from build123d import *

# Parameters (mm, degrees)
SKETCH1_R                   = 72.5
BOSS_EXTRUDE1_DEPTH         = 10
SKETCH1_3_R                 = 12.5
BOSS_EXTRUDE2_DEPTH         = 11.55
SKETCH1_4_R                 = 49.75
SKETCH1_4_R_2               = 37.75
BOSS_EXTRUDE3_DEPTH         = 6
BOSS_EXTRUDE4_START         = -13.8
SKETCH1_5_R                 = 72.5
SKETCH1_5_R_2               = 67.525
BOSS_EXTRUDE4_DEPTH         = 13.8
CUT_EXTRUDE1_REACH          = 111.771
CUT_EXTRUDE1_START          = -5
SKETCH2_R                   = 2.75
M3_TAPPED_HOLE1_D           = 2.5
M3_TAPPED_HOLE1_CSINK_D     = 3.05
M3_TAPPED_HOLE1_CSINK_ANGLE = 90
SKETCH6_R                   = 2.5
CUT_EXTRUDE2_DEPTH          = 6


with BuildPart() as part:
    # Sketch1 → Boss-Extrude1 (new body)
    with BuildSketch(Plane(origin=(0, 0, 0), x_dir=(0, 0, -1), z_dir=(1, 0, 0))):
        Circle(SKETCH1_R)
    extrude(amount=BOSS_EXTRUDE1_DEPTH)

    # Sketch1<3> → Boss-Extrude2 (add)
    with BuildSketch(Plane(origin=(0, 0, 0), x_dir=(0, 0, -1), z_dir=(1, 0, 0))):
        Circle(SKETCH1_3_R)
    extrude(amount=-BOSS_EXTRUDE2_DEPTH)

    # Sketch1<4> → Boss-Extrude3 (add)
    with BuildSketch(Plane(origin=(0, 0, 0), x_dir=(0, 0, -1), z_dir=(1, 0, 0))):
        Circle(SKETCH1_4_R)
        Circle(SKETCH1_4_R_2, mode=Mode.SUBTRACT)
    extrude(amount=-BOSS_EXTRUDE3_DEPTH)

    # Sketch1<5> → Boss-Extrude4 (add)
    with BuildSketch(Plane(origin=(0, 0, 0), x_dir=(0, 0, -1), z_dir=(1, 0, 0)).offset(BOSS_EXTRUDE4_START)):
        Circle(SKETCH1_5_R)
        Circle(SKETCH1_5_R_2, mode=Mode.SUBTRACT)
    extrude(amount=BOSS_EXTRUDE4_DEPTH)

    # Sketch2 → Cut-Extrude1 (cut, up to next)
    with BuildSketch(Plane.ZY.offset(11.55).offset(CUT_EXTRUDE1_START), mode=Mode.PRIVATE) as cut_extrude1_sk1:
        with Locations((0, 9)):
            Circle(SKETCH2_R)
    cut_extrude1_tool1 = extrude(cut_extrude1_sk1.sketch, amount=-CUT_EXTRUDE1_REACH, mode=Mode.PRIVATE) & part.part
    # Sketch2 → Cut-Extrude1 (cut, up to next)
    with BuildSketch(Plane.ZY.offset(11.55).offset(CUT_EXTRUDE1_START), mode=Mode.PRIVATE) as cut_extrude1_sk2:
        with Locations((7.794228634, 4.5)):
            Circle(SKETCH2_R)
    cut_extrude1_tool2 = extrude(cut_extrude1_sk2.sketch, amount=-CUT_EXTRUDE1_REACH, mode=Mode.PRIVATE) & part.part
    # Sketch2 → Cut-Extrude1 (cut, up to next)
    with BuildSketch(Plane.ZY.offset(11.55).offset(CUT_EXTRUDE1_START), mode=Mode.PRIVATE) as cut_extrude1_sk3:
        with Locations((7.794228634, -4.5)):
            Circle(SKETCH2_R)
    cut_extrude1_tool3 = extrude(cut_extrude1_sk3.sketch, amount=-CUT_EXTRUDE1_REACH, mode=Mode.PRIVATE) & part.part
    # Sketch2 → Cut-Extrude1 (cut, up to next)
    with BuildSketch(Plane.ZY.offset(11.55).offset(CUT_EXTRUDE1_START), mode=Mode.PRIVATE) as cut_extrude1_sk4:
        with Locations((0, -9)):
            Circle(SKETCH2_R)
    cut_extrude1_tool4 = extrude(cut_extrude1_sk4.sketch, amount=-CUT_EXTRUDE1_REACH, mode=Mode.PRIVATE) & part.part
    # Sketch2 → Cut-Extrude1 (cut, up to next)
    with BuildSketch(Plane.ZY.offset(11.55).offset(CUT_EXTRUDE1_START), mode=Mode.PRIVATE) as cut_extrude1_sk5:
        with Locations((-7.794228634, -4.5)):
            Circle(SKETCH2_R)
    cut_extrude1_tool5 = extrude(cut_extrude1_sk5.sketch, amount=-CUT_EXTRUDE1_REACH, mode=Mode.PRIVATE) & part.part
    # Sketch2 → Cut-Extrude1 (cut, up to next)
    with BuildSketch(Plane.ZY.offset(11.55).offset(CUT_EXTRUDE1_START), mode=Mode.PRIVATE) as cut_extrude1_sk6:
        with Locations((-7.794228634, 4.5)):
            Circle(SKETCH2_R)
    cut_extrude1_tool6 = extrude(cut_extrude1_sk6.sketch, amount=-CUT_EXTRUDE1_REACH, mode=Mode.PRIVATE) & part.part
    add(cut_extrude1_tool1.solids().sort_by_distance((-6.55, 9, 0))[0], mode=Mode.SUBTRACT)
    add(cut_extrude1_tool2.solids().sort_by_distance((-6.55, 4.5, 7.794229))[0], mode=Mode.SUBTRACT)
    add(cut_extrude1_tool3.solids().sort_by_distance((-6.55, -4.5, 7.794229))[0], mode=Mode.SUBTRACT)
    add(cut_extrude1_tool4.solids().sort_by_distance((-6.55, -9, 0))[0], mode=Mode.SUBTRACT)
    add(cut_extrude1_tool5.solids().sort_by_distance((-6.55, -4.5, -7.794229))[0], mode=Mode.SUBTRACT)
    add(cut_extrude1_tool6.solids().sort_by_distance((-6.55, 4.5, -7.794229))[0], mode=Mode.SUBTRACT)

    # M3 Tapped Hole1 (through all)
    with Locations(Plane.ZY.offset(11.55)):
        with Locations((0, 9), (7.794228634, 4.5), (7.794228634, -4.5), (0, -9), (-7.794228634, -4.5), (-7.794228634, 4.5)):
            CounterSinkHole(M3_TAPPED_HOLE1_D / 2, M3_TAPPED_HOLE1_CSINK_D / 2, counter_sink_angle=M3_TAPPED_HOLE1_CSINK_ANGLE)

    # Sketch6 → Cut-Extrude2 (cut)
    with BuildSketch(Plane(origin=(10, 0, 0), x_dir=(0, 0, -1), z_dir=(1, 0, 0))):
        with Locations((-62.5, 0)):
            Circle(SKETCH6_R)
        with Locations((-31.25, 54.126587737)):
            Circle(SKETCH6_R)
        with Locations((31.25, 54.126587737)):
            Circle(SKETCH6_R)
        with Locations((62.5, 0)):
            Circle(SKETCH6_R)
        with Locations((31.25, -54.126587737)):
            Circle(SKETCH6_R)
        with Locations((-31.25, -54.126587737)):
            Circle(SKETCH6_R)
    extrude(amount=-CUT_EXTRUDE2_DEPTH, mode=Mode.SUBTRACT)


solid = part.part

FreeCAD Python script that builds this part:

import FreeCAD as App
import Part
import Sketcher

doc = App.newDocument("Part")
body = doc.addObject("PartDesign::Body", "Body")

# Sketch on YZ plane
sketch1 = body.newObject("Sketcher::SketchObject", "Sketch")
sketch1.AttachmentSupport = (doc.getObject("YZ_Plane"), [""])
sketch1.MapMode = "FlatFace"
sketch1.addGeometry(Part.Circle(App.Vector(0, 0, 0), App.Vector(0, 0, 1), 72.5), False)
sketch1.addConstraint([
    Sketcher.Constraint("Coincident", 0, 3, -1, 1),
    Sketcher.Constraint("Diameter", 0, 145.0),
])
pad1 = body.newObject("PartDesign::Pad", "Pad")
pad1.Profile = sketch1
pad1.Length = 10

# Sketch on YZ plane
sketch2 = body.newObject("Sketcher::SketchObject", "Sketch001")
sketch2.AttachmentSupport = (doc.getObject("YZ_Plane"), [""])
sketch2.MapMode = "FlatFace"
sketch2.addGeometry(Part.Circle(App.Vector(0, 0, 0), App.Vector(0, 0, 1), 12.5), False)
sketch2.addConstraint([
    Sketcher.Constraint("Coincident", 0, 3, -1, 1),
    Sketcher.Constraint("Diameter", 0, 25.0),
])
pad2 = body.newObject("PartDesign::Pad", "Pad001")
pad2.Profile = sketch2
pad2.Length = 11.55
pad2.Reversed = True

# Sketch on YZ plane
sketch3 = body.newObject("Sketcher::SketchObject", "Sketch002")
sketch3.AttachmentSupport = (doc.getObject("YZ_Plane"), [""])
sketch3.MapMode = "FlatFace"
sketch3.addGeometry([
    Part.Circle(App.Vector(0, 0, 0), App.Vector(0, 0, 1), 49.75),
    Part.Circle(App.Vector(0, 0, 0), App.Vector(0, 0, 1), 37.75),
], False)
sketch3.addConstraint([
    Sketcher.Constraint("Coincident", 0, 3, -1, 1),
    Sketcher.Constraint("Coincident", 1, 3, -1, 1),
    Sketcher.Constraint("Diameter", 0, 99.5),
    Sketcher.Constraint("Diameter", 1, 75.5),
])
pad3 = body.newObject("PartDesign::Pad", "Pad002")
pad3.Profile = sketch3
pad3.Length = 6
pad3.Reversed = True

# Sketch on YZ plane
sketch4 = body.newObject("Sketcher::SketchObject", "Sketch003")
sketch4.AttachmentSupport = (doc.getObject("YZ_Plane"), [""])
sketch4.MapMode = "FlatFace"
sketch4.AttachmentOffset = App.Placement(App.Vector(0, 0, -13.8), App.Rotation())
sketch4.addGeometry([
    Part.Circle(App.Vector(0, 0, 0), App.Vector(0, 0, 1), 72.5),
    Part.Circle(App.Vector(0, 0, 0), App.Vector(0, 0, 1), 67.525),
], False)
sketch4.addConstraint([
    Sketcher.Constraint("Coincident", 0, 3, -1, 1),
    Sketcher.Constraint("Coincident", 1, 3, -1, 1),
    Sketcher.Constraint("Diameter", 0, 145.0),
    Sketcher.Constraint("Diameter", 1, 135.05),
])
pad4 = body.newObject("PartDesign::Pad", "Pad003")
pad4.Profile = sketch4
pad4.Length = 13.8

# Sketch on YZ plane
sketch5 = body.newObject("Sketcher::SketchObject", "Sketch004")
sketch5.AttachmentSupport = (doc.getObject("YZ_Plane"), [""])
sketch5.MapMode = "FlatFace"
sketch5.AttachmentOffset = App.Placement(App.Vector(0, 0, -6.55), App.Rotation())
sketch5.addGeometry(Part.Circle(App.Vector(9, 0, 0), App.Vector(0, 0, 1), 2.75), False)
sketch5.addConstraint([
    Sketcher.Constraint("PointOnObject", 0, 3, -1),
    Sketcher.Constraint("Diameter", 0, 5.5),
    Sketcher.Constraint("DistanceX", -1, 1, 0, 3, 9.0),
])
pocket1 = body.newObject("PartDesign::Pocket", "Pocket")
pocket1.Profile = sketch5
pocket1.Type = "UpToFirst"
pocket1.Reversed = True

# Sketch on YZ plane
sketch6 = body.newObject("Sketcher::SketchObject", "Sketch005")
sketch6.AttachmentSupport = (doc.getObject("YZ_Plane"), [""])
sketch6.MapMode = "FlatFace"
sketch6.AttachmentOffset = App.Placement(App.Vector(0, 0, -6.55), App.Rotation())
sketch6.addGeometry(Part.Circle(App.Vector(4.5, 7.794229, 0), App.Vector(0, 0, 1), 2.75), False)
sketch6.addConstraint([
    Sketcher.Constraint("Diameter", 0, 5.5),
    Sketcher.Constraint("DistanceX", -1, 1, 0, 3, 4.5),
    Sketcher.Constraint("DistanceY", -1, 1, 0, 3, 7.794229),
])
pocket2 = body.newObject("PartDesign::Pocket", "Pocket001")
pocket2.Profile = sketch6
pocket2.Type = "UpToFirst"
pocket2.Reversed = True

# Sketch on YZ plane
sketch7 = body.newObject("Sketcher::SketchObject", "Sketch006")
sketch7.AttachmentSupport = (doc.getObject("YZ_Plane"), [""])
sketch7.MapMode = "FlatFace"
sketch7.AttachmentOffset = App.Placement(App.Vector(0, 0, -6.55), App.Rotation())
sketch7.addGeometry(Part.Circle(App.Vector(-4.5, 7.794229, 0), App.Vector(0, 0, 1), 2.75), False)
sketch7.addConstraint([
    Sketcher.Constraint("Diameter", 0, 5.5),
    Sketcher.Constraint("DistanceX", 0, 3, -1, 1, 4.5),
    Sketcher.Constraint("DistanceY", -1, 1, 0, 3, 7.794229),
])
pocket3 = body.newObject("PartDesign::Pocket", "Pocket002")
pocket3.Profile = sketch7
pocket3.Type = "UpToFirst"
pocket3.Reversed = True

# Sketch on YZ plane
sketch8 = body.newObject("Sketcher::SketchObject", "Sketch007")
sketch8.AttachmentSupport = (doc.getObject("YZ_Plane"), [""])
sketch8.MapMode = "FlatFace"
sketch8.AttachmentOffset = App.Placement(App.Vector(0, 0, -6.55), App.Rotation())
sketch8.addGeometry(Part.Circle(App.Vector(-9, 0, 0), App.Vector(0, 0, 1), 2.75), False)
sketch8.addConstraint([
    Sketcher.Constraint("PointOnObject", 0, 3, -1),
    Sketcher.Constraint("Diameter", 0, 5.5),
    Sketcher.Constraint("DistanceX", 0, 3, -1, 1, 9.0),
])
pocket4 = body.newObject("PartDesign::Pocket", "Pocket003")
pocket4.Profile = sketch8
pocket4.Type = "UpToFirst"
pocket4.Reversed = True

# Sketch on YZ plane
sketch9 = body.newObject("Sketcher::SketchObject", "Sketch008")
sketch9.AttachmentSupport = (doc.getObject("YZ_Plane"), [""])
sketch9.MapMode = "FlatFace"
sketch9.AttachmentOffset = App.Placement(App.Vector(0, 0, -6.55), App.Rotation())
sketch9.addGeometry(Part.Circle(App.Vector(-4.5, -7.794229, 0), App.Vector(0, 0, 1), 2.75), False)
sketch9.addConstraint([
    Sketcher.Constraint("Diameter", 0, 5.5),
    Sketcher.Constraint("DistanceX", 0, 3, -1, 1, 4.5),
    Sketcher.Constraint("DistanceY", 0, 3, -1, 1, 7.794229),
])
pocket5 = body.newObject("PartDesign::Pocket", "Pocket004")
pocket5.Profile = sketch9
pocket5.Type = "UpToFirst"
pocket5.Reversed = True

# Sketch on YZ plane
sketch10 = body.newObject("Sketcher::SketchObject", "Sketch009")
sketch10.AttachmentSupport = (doc.getObject("YZ_Plane"), [""])
sketch10.MapMode = "FlatFace"
sketch10.AttachmentOffset = App.Placement(App.Vector(0, 0, -6.55), App.Rotation())
sketch10.addGeometry(Part.Circle(App.Vector(4.5, -7.794229, 0), App.Vector(0, 0, 1), 2.75), False)
sketch10.addConstraint([
    Sketcher.Constraint("Diameter", 0, 5.5),
    Sketcher.Constraint("DistanceX", -1, 1, 0, 3, 4.5),
    Sketcher.Constraint("DistanceY", 0, 3, -1, 1, 7.794229),
])
pocket6 = body.newObject("PartDesign::Pocket", "Pocket005")
pocket6.Profile = sketch10
pocket6.Type = "UpToFirst"
pocket6.Reversed = True

# Sketch on YZ plane
sketch11 = body.newObject("Sketcher::SketchObject", "Sketch010")
sketch11.AttachmentSupport = (doc.getObject("YZ_Plane"), [""])
sketch11.MapMode = "FlatFace"
sketch11.AttachmentOffset = App.Placement(App.Vector(0, 0, -11.55), App.Rotation())
sketch11.addGeometry([
    Part.Circle(App.Vector(9, 0, 0), App.Vector(0, 0, 1), 1.25),  # 0
    Part.Circle(App.Vector(4.5, 7.794229, 0), App.Vector(0, 0, 1), 1.25),  # 1
    Part.Circle(App.Vector(-4.5, 7.794229, 0), App.Vector(0, 0, 1), 1.25),  # 2
    Part.Circle(App.Vector(-9, 0, 0), App.Vector(0, 0, 1), 1.25),  # 3
    Part.Circle(App.Vector(-4.5, -7.794229, 0), App.Vector(0, 0, 1), 1.25),  # 4
    Part.Circle(App.Vector(4.5, -7.794229, 0), App.Vector(0, 0, 1), 1.25),  # 5
], False)
sketch11.addConstraint([
    Sketcher.Constraint("Equal", 0, 1),
    Sketcher.Constraint("Equal", 1, 2),
    Sketcher.Constraint("Equal", 2, 3),
    Sketcher.Constraint("Equal", 3, 4),
    Sketcher.Constraint("Equal", 4, 5),
    Sketcher.Constraint("Symmetric", 0, 3, 3, 3, -1, 1),
    Sketcher.Constraint("Symmetric", 1, 3, 4, 3, -1, 1),
    Sketcher.Constraint("Symmetric", 2, 3, 5, 3, -1, 1),
    Sketcher.Constraint("Symmetric", 1, 3, 2, 3, -2),
    Sketcher.Constraint("PointOnObject", 0, 3, -1),
    Sketcher.Constraint("Diameter", 0, 2.5),
    Sketcher.Constraint("DistanceX", -1, 1, 0, 3, 9.0),
    Sketcher.Constraint("DistanceX", 2, 3, 1, 3, 9.0),
    Sketcher.Constraint("DistanceY", -1, 1, 1, 3, 7.794229),
])
doc.recompute()
hole = body.newObject("PartDesign::Hole", "Hole")
hole.Profile = sketch11
hole.ThreadType = "None"
hole.Diameter = 2.5
hole.DepthType = "ThroughAll"
hole.HoleCutType = "Countersink"
hole.HoleCutDiameter = 3.05
hole.HoleCutCountersinkAngle = 90
hole.Reversed = True

# Sketch on YZ plane
sketch12 = body.newObject("Sketcher::SketchObject", "Sketch011")
sketch12.AttachmentSupport = (doc.getObject("YZ_Plane"), [""])
sketch12.MapMode = "FlatFace"
sketch12.AttachmentOffset = App.Placement(App.Vector(0, 0, 10), App.Rotation())
sketch12.addGeometry([
    Part.Circle(App.Vector(0, 62.5, 0), App.Vector(0, 0, 1), 2.5),  # 0
    Part.Circle(App.Vector(54.126588, 31.25, 0), App.Vector(0, 0, 1), 2.5),  # 1
    Part.Circle(App.Vector(54.126588, -31.25, 0), App.Vector(0, 0, 1), 2.5),  # 2
    Part.Circle(App.Vector(0, -62.5, 0), App.Vector(0, 0, 1), 2.5),  # 3
    Part.Circle(App.Vector(-54.126588, -31.25, 0), App.Vector(0, 0, 1), 2.5),  # 4
    Part.Circle(App.Vector(-54.126588, 31.25, 0), App.Vector(0, 0, 1), 2.5),  # 5
], False)
sketch12.addConstraint([
    Sketcher.Constraint("Equal", 0, 1),
    Sketcher.Constraint("Equal", 1, 2),
    Sketcher.Constraint("Equal", 2, 3),
    Sketcher.Constraint("Equal", 3, 4),
    Sketcher.Constraint("Equal", 4, 5),
    Sketcher.Constraint("Symmetric", 0, 3, 3, 3, -1, 1),
    Sketcher.Constraint("Symmetric", 1, 3, 4, 3, -1, 1),
    Sketcher.Constraint("Symmetric", 2, 3, 5, 3, -1, 1),
    Sketcher.Constraint("Symmetric", 2, 3, 4, 3, -2),
    Sketcher.Constraint("PointOnObject", 0, 3, -2),
    Sketcher.Constraint("Diameter", 0, 5.0),
    Sketcher.Constraint("DistanceY", 3, 3, 0, 3, 125.0),
    Sketcher.Constraint("DistanceY", 2, 3, 1, 3, 62.5),
    Sketcher.Constraint("DistanceX", -1, 1, 1, 3, 54.126588),
])
pocket7 = body.newObject("PartDesign::Pocket", "Pocket006")
pocket7.Profile = sketch12
pocket7.Length = 6

doc.recompute()
